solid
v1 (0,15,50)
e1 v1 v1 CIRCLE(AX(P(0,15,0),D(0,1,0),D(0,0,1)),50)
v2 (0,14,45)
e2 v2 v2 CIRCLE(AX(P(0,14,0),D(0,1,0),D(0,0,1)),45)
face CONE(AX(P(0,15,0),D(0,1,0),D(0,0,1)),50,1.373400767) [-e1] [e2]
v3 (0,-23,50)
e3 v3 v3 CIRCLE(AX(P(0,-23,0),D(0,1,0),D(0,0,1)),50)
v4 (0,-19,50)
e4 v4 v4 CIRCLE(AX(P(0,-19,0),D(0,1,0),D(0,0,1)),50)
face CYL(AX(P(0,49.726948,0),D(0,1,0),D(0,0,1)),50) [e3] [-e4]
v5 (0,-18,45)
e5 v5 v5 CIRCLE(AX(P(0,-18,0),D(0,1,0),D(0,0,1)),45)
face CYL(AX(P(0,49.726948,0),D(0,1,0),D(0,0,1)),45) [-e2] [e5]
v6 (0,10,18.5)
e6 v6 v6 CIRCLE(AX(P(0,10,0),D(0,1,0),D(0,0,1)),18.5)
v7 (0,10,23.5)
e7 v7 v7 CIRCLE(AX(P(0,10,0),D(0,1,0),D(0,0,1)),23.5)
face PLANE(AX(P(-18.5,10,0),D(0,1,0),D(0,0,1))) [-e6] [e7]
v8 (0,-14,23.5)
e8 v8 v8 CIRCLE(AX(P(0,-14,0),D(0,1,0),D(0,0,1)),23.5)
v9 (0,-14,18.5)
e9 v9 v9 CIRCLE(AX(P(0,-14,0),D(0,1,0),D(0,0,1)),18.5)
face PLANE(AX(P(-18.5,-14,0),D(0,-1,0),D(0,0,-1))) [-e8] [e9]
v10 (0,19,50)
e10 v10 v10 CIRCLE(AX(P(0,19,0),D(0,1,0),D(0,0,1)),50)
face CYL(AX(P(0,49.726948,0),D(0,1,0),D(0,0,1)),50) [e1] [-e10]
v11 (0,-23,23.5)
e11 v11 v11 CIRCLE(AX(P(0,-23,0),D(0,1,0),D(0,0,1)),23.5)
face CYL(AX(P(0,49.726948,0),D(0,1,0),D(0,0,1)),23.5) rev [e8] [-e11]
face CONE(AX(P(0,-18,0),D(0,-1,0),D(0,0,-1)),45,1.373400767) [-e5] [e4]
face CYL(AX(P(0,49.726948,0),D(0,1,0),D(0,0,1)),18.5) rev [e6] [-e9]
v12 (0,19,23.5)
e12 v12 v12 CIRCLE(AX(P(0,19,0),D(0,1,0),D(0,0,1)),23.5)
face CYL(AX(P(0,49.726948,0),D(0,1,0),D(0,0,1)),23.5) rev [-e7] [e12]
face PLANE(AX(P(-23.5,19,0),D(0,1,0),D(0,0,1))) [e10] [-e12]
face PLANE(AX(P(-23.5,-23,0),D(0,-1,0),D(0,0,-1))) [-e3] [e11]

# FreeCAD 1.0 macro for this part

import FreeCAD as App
import Part
import Sketcher


def add_polygon(sketch, points):
    """Adds a closed chain of lines whose ends are joined by coincident constraints."""
    first, n = sketch.GeometryCount, len(points)
    for a, b in zip(points, points[1:] + points[:1]):
        sketch.addGeometry(Part.LineSegment(App.Vector(*a, 0), App.Vector(*b, 0)), False)
    for i in range(n):
        sketch.addConstraint(Sketcher.Constraint("Coincident", first + i, 2, first + (i + 1) % n, 1))

doc = App.newDocument("Part")
params = doc.addObject("Spreadsheet::Sheet", "Params")
for row, (alias, value) in enumerate([
    ("sketch1_width", "5 mm"),
    ("sketch1_height", "9 mm"),
    ("sketch1_height2", "24 mm"),
    ("sketch1_height3", "4 mm"),
    ("sketch1_height4", "32 mm"),
    ("revolution_angle", "360 deg"),
], start=1):
    params.set(f"A{row}", alias)
    params.set(f"B{row}", "=" + value)
    params.setAlias(f"B{row}", alias)

body = doc.addObject("PartDesign::Body", "Body")

sketch1 = body.newObject("Sketcher::SketchObject", "Sketch")
sketch1.AttachmentSupport = (doc.getObject("XY_Plane"), [""])
sketch1.MapMode = "FlatFace"
add_polygon(sketch1, [(-23.5, -23), (-23.5, -14), (-18.5, -14), (-18.5, 10), (-23.5, 10), (-23.5, 19), (-50, 19), (-50, 15), (-45, 14), (-45, -18), (-50, -19), (-50, -23)])
sketch1.addConstraint([
    Sketcher.Constraint("Vertical", 0),
    Sketcher.Constraint("Horizontal", 1),
    Sketcher.Constraint("Vertical", 2),
    Sketcher.Constraint("Horizontal", 3),
    Sketcher.Constraint("Vertical", 4),
    Sketcher.Constraint("Horizontal", 5),
    Sketcher.Constraint("Vertical", 6),
    Sketcher.Constraint("Vertical", 8),
    Sketcher.Constraint("Vertical", 10),
    Sketcher.Constraint("Horizontal", 11),
    Sketcher.Constraint("Symmetric", 5, 2, 9, 2, -1),
    Sketcher.Constraint("Vertical", 0, 2, 3, 2),
    Sketcher.Constraint("Equal", 0, 4),
    Sketcher.Constraint("Equal", 6, 10),
    Sketcher.Constraint("Equal", 7, 9),
    Sketcher.Constraint("DistanceX", 1, 1, 1, 2, 5.0),
    Sketcher.Constraint("DistanceY", 0, 1, 0, 2, 9.0),
    Sketcher.Constraint("DistanceY", 2, 1, 2, 2, 24.0),
    Sketcher.Constraint("DistanceY", 6, 2, 6, 1, 4.0),
    Sketcher.Constraint("DistanceY", 8, 2, 8, 1, 32.0),
    Sketcher.Constraint("DistanceX", 5, 2, 5, 1, 26.5),
    Sketcher.Constraint("DistanceX", 5, 2, -1, 1, 50.0),
    Sketcher.Constraint("DistanceX", 7, 2, -1, 1, 45.0),
])
sketch1.setExpression("Constraints[27]", "Params.sketch1_width")
sketch1.setExpression("Constraints[28]", "Params.sketch1_height")
sketch1.setExpression("Constraints[29]", "Params.sketch1_height2")
sketch1.setExpression("Constraints[30]", "Params.sketch1_height3")
sketch1.setExpression("Constraints[31]", "Params.sketch1_height4")
revolution = body.newObject("PartDesign::Revolution", "Revolution")
revolution.Profile = sketch1
revolution.ReferenceAxis = (sketch1, ["V_Axis"])
revolution.setExpression("Angle", "Params.revolution_angle")

doc.recompute()
